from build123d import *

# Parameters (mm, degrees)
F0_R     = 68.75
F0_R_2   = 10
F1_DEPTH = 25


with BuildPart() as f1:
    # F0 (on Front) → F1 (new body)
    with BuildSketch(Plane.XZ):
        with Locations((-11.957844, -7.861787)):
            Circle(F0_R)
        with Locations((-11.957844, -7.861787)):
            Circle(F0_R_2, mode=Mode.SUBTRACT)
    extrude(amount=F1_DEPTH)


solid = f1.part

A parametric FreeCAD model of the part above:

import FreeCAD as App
import Part
import Sketcher
from FreeCAD import Vector

doc = App.newDocument("Part")
body = doc.addObject("PartDesign::Body", "Body")

# Sketch on XZ plane
sketch1 = body.newObject("Sketcher::SketchObject", "Sketch")
sketch1.AttachmentSupport = (doc.getObject("XZ_Plane"), [""])
sketch1.MapMode = "FlatFace"
sketch1.addGeometry([
    Part.Circle(Vector(-11.957844, -7.861787, 0), Vector(0, 0, 1), 68.75),
    Part.Circle(Vector(-11.957844, -7.861787, 0), Vector(0, 0, 1), 10),
], False)
sketch1.addConstraint([
    Sketcher.Constraint("Coincident", 1, 3, 0, 3),
    Sketcher.Constraint("Diameter", 1, 20.0),
    Sketcher.Constraint("Diameter", 0, 137.5),
    Sketcher.Constraint("DistanceX", 0, 3, -1, 1, 11.957844),
    Sketcher.Constraint("DistanceY", 0, 3, -1, 1, 7.861787),
])
pad1 = body.newObject("PartDesign::Pad", "Pad")
pad1.Profile = sketch1
pad1.Length = 25

doc.recompute()
